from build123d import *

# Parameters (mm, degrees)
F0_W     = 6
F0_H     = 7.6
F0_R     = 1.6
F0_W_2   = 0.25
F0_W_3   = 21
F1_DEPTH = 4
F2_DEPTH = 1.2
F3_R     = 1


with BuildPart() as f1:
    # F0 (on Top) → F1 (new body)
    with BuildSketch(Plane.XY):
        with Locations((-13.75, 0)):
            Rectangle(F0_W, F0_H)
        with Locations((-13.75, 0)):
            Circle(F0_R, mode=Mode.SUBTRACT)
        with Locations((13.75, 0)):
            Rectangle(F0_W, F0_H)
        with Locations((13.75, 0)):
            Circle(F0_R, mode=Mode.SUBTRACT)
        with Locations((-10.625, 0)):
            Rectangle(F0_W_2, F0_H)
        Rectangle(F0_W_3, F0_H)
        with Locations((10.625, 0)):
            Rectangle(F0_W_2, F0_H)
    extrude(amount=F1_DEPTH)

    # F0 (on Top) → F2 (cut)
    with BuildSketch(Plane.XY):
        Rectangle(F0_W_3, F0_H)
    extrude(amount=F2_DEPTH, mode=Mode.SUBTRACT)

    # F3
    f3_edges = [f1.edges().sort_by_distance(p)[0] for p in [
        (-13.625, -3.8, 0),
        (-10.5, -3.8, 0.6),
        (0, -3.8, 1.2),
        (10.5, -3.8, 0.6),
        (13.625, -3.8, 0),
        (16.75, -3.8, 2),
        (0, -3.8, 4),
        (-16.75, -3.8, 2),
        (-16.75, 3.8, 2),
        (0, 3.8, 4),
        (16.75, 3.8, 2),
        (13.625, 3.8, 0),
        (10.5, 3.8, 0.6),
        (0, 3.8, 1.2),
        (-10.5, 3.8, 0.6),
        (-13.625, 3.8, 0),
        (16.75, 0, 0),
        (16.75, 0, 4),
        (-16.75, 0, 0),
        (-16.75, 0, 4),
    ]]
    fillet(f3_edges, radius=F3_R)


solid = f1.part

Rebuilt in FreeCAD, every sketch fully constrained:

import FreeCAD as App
import Part
import Sketcher
Q = App.Units.Quantity


def edges_at(feature, points):
    """Names of the edges that pass closest to the given points."""
    edges = feature.Shape.Edges
    near = lambda p: min(range(len(edges)), key=lambda i: edges[i].distToShape(Part.Vertex(*p))[0])
    return sorted({f"Edge{near(p) + 1}" for p in points})


def add_polygon(sketch, points):
    """Adds a closed chain of lines whose ends are joined by coincident constraints."""
    first, n = sketch.GeometryCount, len(points)
    for a, b in zip(points, points[1:] + points[:1]):
        sketch.addGeometry(Part.LineSegment(App.Vector(*a, 0), App.Vector(*b, 0)), False)
    for i in range(n):
        sketch.addConstraint(Sketcher.Constraint("Coincident", first + i, 2, first + (i + 1) % n, 1))

doc = App.newDocument("Part")
params = doc.addObject("Spreadsheet::Sheet", "Params")
for row, (alias, value) in enumerate([
    ("sketch1_diameter", "3.2 mm"),
    ("sketch1_width", "33.5 mm"),
    ("sketch1_height", "7.6 mm"),
    ("pad1_length", "4 mm"),
    ("sketch2_width", "21 mm"),
    ("sketch2_height", "7.6 mm"),
    ("pocket1_length", "1.2 mm"),
    ("fillet_radius", "1 mm"),
], start=1):
    params.set(f"A{row}", alias)
    params.set(f"B{row}", "=" + value)
    params.setAlias(f"B{row}", alias)

body = doc.addObject("PartDesign::Body", "Body")

sketch1 = body.newObject("Sketcher::SketchObject", "Sketch")
sketch1.AttachmentSupport = (doc.getObject("XY_Plane"), [""])
sketch1.MapMode = "FlatFace"
add_polygon(sketch1, [(-16.75, 3.8), (-16.75, -3.8), (16.75, -3.8), (16.75, 3.8)])
sketch1.addGeometry(Part.Circle(App.Vector(-13.75, 0, 0), App.Vector(0, 0, 1), 1.6), False)
sketch1.addGeometry(Part.Circle(App.Vector(13.75, 0, 0), App.Vector(0, 0, 1), 1.6), False)
sketch1.addConstraint(Sketcher.Constraint("Vertical", 0))
sketch1.addConstraint(Sketcher.Constraint("Horizontal", 1))
sketch1.addConstraint(Sketcher.Constraint("Vertical", 2))
sketch1.addConstraint(Sketcher.Constraint("Horizontal", 3))
sketch1.addConstraint(Sketcher.Constraint("Equal", 4, 5))
sketch1.addConstraint(Sketcher.Constraint("Symmetric", 4, 3, 5, 3, -1, 1))
sketch1.addConstraint(Sketcher.Constraint("Symmetric", 0, 2, 2, 2, -1, 1))
sketch1.addConstraint(Sketcher.Constraint("PointOnObject", 4, 3, -1))
sketch1.addConstraint(Sketcher.Constraint("Diameter", 4, Q("3.2 mm")))
sketch1.addConstraint(Sketcher.Constraint("DistanceX", 1, 1, 1, 2, Q("33.5 mm")))
sketch1.addConstraint(Sketcher.Constraint("DistanceY", 0, 2, 0, 1, Q("7.6 mm")))
sketch1.addConstraint(Sketcher.Constraint("DistanceX", 0, 2, 4, 3, Q("3 mm")))
sketch1.setExpression("Constraints[12]", "Params.sketch1_diameter")
sketch1.setExpression("Constraints[13]", "Params.sketch1_width")
sketch1.setExpression("Constraints[14]", "Params.sketch1_height")
pad1 = body.newObject("PartDesign::Pad", "Pad")
pad1.Profile = sketch1
pad1.setExpression("Length", "Params.pad1_length")

sketch2 = body.newObject("Sketcher::SketchObject", "Sketch001")
sketch2.AttachmentSupport = (doc.getObject("XY_Plane"), [""])
sketch2.MapMode = "FlatFace"
add_polygon(sketch2, [(-10.5, 3.8), (-10.5, -3.8), (10.5, -3.8), (10.5, 3.8)])
sketch2.addConstraint(Sketcher.Constraint("Vertical", 0))
sketch2.addConstraint(Sketcher.Constraint("Horizontal", 1))
sketch2.addConstraint(Sketcher.Constraint("Vertical", 2))
sketch2.addConstraint(Sketcher.Constraint("Horizontal", 3))
sketch2.addConstraint(Sketcher.Constraint("Symmetric", 0, 2, 2, 2, -1, 1))
sketch2.addConstraint(Sketcher.Constraint("DistanceX", 1, 1, 1, 2, Q("21 mm")))
sketch2.addConstraint(Sketcher.Constraint("DistanceY", 0, 2, 0, 1, Q("7.6 mm")))
sketch2.setExpression("Constraints[9]", "Params.sketch2_width")
sketch2.setExpression("Constraints[10]", "Params.sketch2_height")
pocket1 = body.newObject("PartDesign::Pocket", "Pocket")
pocket1.Profile = sketch2
pocket1.setExpression("Length", "Params.pocket1_length")
pocket1.Reversed = True
doc.recompute()

fillet = body.newObject("PartDesign::Fillet", "Fillet")
fillet.Base = (pocket1, edges_at(pocket1, [
    (-13.625, -3.8, 0),
    (-10.5, -3.8, 0.6),
    (0, -3.8, 1.2),
    (10.5, -3.8, 0.6),
    (13.625, -3.8, 0),
    (16.75, -3.8, 2),
    (0, -3.8, 4),
    (-16.75, -3.8, 2),
    (-16.75, 3.8, 2),
    (0, 3.8, 4),
    (16.75, 3.8, 2),
    (13.625, 3.8, 0),
    (10.5, 3.8, 0.6),
    (0, 3.8, 1.2),
    (-10.5, 3.8, 0.6),
    (-13.625, 3.8, 0),
    (16.75, 0, 0),
    (16.75, 0, 4),
    (-16.75, 0, 0),
    (-16.75, 0, 4),
]))
fillet.setExpression("Radius", "Params.fillet_radius")

doc.recompute()
